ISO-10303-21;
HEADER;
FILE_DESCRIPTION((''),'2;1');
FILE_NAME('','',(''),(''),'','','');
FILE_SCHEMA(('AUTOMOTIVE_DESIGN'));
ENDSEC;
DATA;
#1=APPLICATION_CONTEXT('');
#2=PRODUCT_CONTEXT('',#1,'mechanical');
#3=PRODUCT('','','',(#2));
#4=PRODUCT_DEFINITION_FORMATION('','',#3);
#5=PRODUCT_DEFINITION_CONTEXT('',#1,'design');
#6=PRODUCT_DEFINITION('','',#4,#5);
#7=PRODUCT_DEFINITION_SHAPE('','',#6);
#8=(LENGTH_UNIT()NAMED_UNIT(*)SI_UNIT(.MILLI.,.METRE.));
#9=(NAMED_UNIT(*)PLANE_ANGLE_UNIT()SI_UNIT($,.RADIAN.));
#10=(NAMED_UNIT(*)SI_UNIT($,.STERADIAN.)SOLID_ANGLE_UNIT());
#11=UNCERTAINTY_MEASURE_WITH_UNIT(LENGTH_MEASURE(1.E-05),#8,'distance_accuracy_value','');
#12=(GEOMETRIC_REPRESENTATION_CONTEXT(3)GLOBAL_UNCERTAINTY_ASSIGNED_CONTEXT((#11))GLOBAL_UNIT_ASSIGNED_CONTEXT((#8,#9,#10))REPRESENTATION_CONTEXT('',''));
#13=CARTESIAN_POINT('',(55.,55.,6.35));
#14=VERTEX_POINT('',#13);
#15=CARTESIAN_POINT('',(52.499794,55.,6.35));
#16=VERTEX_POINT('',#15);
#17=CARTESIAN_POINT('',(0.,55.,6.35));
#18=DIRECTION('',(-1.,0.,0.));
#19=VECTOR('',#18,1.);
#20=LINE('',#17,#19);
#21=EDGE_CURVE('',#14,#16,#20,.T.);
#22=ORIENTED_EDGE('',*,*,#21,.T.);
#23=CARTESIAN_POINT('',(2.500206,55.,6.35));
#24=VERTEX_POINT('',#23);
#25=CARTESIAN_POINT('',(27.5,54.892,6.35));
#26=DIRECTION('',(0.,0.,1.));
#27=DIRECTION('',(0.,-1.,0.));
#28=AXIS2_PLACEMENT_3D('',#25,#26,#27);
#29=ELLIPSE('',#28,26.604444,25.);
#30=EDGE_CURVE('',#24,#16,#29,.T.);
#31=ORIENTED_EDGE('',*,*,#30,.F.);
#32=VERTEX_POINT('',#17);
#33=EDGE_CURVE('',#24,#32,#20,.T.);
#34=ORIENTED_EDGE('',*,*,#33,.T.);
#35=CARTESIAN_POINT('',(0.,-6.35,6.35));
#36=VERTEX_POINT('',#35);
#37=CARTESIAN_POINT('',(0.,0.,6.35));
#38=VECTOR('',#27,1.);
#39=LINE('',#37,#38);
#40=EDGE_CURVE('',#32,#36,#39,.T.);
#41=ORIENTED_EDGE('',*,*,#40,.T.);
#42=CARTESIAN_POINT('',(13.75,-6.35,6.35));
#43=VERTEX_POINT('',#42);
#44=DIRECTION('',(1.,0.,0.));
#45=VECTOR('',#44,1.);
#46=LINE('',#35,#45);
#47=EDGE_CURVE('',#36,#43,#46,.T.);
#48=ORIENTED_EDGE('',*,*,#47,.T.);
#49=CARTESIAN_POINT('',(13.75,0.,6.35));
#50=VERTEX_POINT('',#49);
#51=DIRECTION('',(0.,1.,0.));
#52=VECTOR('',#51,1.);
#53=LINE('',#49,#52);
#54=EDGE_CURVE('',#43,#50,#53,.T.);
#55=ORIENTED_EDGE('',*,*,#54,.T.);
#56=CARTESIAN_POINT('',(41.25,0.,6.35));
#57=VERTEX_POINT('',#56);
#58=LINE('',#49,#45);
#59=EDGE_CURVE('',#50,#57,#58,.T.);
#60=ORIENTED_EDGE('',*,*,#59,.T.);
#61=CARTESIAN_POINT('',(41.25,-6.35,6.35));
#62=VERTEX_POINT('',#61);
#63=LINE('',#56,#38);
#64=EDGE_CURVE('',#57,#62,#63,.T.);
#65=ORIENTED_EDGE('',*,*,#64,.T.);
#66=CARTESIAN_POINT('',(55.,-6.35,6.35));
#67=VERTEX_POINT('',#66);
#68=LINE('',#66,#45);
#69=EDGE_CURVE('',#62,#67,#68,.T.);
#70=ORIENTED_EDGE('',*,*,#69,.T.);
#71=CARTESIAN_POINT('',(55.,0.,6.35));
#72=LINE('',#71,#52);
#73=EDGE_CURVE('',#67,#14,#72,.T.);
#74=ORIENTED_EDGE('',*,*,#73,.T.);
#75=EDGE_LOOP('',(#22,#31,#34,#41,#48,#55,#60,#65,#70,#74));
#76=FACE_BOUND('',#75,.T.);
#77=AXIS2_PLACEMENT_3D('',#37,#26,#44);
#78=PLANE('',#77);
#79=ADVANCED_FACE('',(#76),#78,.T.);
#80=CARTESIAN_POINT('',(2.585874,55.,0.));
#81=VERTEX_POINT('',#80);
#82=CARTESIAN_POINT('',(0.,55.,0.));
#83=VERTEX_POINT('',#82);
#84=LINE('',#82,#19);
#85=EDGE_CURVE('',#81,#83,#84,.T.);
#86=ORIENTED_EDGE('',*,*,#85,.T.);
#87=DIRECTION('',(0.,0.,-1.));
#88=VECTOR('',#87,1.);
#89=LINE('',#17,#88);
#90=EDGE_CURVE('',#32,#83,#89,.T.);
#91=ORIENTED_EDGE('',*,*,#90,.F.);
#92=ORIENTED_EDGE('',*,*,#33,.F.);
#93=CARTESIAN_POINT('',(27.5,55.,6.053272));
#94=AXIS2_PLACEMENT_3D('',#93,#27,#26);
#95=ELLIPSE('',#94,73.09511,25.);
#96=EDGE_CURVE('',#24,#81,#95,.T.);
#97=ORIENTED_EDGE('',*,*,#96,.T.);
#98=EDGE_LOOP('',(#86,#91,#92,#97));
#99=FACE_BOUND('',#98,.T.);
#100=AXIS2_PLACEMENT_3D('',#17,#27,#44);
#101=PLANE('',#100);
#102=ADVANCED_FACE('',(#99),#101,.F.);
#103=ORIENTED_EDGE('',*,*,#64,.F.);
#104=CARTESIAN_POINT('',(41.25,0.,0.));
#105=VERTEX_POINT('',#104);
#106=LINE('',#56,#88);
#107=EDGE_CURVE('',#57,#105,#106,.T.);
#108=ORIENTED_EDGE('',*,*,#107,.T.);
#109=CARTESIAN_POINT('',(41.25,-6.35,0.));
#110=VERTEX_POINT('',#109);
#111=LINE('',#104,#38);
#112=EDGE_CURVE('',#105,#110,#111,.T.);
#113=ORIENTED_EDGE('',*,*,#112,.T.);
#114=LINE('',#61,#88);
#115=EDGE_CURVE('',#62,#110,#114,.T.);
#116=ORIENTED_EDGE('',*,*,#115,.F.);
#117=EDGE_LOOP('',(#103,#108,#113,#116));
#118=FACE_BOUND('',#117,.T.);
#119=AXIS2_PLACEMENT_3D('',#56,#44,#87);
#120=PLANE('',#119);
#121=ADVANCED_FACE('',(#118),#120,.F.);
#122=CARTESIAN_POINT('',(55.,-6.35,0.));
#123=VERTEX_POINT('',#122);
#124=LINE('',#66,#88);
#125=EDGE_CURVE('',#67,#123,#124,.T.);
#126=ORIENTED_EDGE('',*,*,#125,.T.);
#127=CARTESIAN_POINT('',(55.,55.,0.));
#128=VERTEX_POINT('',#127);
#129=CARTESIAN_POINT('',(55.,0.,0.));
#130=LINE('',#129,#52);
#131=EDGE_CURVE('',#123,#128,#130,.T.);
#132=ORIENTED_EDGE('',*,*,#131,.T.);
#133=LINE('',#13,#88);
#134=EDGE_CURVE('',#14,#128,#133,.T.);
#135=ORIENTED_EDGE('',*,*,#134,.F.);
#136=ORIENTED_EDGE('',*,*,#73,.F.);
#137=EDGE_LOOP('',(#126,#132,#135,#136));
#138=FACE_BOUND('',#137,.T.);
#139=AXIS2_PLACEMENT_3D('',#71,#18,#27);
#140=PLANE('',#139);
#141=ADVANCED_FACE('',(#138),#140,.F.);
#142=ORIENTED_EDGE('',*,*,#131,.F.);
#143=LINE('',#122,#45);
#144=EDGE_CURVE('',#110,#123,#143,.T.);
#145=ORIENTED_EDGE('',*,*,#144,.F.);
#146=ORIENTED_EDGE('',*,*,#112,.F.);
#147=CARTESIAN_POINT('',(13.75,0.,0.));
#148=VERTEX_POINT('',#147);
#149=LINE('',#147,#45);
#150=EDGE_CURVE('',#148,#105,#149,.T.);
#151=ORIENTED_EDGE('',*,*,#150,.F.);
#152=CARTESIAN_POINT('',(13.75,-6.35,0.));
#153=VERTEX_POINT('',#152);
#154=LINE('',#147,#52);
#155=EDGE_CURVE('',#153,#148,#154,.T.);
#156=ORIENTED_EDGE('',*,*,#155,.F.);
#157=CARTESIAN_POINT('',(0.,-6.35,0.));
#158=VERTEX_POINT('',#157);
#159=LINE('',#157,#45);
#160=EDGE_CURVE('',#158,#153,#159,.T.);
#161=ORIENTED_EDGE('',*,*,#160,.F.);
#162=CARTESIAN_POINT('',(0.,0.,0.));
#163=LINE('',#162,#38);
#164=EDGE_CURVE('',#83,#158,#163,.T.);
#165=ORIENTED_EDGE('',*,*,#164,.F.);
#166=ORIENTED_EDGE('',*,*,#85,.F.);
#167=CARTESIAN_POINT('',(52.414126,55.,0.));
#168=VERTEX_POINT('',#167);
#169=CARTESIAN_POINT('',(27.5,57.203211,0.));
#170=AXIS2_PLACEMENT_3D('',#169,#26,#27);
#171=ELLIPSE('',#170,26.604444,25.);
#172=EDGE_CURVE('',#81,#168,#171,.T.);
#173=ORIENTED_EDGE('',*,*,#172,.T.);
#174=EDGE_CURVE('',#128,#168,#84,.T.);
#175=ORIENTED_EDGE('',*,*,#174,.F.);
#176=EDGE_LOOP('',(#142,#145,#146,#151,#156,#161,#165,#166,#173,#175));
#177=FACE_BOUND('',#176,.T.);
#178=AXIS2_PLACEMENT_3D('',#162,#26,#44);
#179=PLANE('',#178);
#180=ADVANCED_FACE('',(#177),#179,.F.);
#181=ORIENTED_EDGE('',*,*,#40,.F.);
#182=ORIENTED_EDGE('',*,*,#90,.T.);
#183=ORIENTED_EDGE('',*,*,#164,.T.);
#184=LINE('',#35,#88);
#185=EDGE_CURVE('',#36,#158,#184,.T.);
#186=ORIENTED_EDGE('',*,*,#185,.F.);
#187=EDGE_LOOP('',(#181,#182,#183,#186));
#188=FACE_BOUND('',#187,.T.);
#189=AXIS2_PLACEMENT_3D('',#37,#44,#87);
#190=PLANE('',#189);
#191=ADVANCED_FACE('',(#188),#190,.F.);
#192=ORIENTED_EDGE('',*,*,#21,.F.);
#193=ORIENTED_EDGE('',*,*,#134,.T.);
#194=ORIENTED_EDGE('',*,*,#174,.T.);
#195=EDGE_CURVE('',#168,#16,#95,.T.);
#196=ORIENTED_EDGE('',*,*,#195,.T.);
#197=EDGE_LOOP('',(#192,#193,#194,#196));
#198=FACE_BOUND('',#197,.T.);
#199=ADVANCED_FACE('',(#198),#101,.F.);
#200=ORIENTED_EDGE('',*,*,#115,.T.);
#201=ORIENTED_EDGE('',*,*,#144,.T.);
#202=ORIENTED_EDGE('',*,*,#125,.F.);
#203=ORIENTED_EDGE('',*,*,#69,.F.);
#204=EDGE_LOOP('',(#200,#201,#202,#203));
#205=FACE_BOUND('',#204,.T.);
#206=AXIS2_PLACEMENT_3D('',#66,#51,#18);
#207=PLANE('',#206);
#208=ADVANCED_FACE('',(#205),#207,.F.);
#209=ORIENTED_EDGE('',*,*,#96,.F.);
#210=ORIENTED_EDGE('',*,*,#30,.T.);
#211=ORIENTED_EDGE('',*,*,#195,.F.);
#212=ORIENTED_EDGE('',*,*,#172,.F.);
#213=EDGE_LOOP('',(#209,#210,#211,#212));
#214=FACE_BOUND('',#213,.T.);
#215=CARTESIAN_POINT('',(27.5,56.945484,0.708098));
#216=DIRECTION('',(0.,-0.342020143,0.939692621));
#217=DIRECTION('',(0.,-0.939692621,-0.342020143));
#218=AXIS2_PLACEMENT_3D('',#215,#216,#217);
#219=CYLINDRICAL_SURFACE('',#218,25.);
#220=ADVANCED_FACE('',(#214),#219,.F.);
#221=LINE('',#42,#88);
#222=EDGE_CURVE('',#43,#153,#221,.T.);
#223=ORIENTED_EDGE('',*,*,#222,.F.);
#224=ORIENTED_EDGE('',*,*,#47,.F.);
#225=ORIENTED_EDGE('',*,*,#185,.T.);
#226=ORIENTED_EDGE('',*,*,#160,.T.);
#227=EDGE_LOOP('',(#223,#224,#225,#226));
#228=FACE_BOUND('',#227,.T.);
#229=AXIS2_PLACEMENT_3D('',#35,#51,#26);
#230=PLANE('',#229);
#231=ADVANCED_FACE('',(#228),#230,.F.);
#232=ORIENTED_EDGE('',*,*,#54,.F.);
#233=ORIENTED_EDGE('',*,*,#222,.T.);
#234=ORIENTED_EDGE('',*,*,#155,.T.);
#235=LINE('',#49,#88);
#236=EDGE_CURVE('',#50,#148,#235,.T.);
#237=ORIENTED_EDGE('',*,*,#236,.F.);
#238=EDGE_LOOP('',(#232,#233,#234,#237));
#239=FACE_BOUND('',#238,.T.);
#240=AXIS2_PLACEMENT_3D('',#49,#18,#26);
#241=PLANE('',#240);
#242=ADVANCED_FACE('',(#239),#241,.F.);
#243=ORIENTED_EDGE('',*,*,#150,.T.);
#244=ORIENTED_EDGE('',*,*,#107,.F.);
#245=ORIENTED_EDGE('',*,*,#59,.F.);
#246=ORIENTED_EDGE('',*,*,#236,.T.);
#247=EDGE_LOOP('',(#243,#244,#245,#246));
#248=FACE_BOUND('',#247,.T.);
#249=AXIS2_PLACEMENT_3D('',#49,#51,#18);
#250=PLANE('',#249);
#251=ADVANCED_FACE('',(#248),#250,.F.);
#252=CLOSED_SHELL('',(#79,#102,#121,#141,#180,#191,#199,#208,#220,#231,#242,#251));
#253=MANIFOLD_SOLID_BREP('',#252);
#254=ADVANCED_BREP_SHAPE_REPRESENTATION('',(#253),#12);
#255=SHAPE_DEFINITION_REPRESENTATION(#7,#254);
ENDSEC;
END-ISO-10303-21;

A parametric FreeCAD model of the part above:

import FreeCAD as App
import Part
import Sketcher

V = App.Vector
Q = App.Units.Quantity

doc = App.newDocument("Part")
body = doc.addObject("PartDesign::Body", "Body")

sketch1 = doc.addObject("Sketcher::SketchObject", "Sketch")
body.addObject(sketch1)
sketch1.AttachmentSupport = (doc.XY_Plane, [""])
sketch1.MapMode = "FlatFace"
sketch1.addGeometry([
    Part.LineSegment(V(14, 0, 0), V(41, 0, 0)),
    Part.LineSegment(V(41, 0, 0), V(41, -6, 0)),
    Part.LineSegment(V(41, -6, 0), V(55, -6, 0)),
    Part.LineSegment(V(55, -6, 0), V(55, 55, 0)),
    Part.LineSegment(V(55, 55, 0), V(0, 55, 0)),
    Part.LineSegment(V(0, 55, 0), V(0, -6, 0)),
    Part.LineSegment(V(0, -6, 0), V(14, -6, 0)),
    Part.LineSegment(V(14, -6, 0), V(14, 0, 0)),
], False)
sketch1.addConstraint([
    Sketcher.Constraint("Coincident", 0, 2, 1, 1),
    Sketcher.Constraint("Coincident", 1, 2, 2, 1),
    Sketcher.Constraint("Coincident", 2, 2, 3, 1),
    Sketcher.Constraint("Coincident", 3, 2, 4, 1),
    Sketcher.Constraint("Coincident", 4, 2, 5, 1),
    Sketcher.Constraint("Coincident", 5, 2, 6, 1),
    Sketcher.Constraint("Coincident", 6, 2, 7, 1),
    Sketcher.Constraint("Coincident", 7, 2, 0, 1),
    Sketcher.Constraint("Horizontal", 0),
    Sketcher.Constraint("Vertical", 1),
    Sketcher.Constraint("Horizontal", 2),
    Sketcher.Constraint("Vertical", 3),
    Sketcher.Constraint("Horizontal", 4),
    Sketcher.Constraint("Vertical", 5),
    Sketcher.Constraint("Horizontal", 6),
    Sketcher.Constraint("Vertical", 7),
    Sketcher.Constraint("PointOnObject", 0, 2, -1),
    Sketcher.Constraint("PointOnObject", 4, 2, -2),
    Sketcher.Constraint("Horizontal", 2, 2, 5, 2),
    Sketcher.Constraint("Equal", 2, 6),
    Sketcher.Constraint("DistanceX", 4, 2, 4, 1, Q("55 mm")),
    Sketcher.Constraint("DistanceX", 0, 1, 0, 2, Q("27.5 mm")),
    Sketcher.Constraint("DistanceY", -1, 1, 3, 2, Q("55 mm")),
    Sketcher.Constraint("DistanceY", 1, 2, 1, 1, Q("6.35 mm")),
])
pad1 = doc.addObject("PartDesign::Pad", "Pad")
body.addObject(pad1)
pad1.Profile = sketch1
pad1.Length = 6.35

sketch2 = doc.addObject("Sketcher::SketchObject", "Sketch001")
body.addObject(sketch2)
sketch2.Placement = App.Placement(V(0, 4.380294, -12.034758), App.Rotation(V(1, 0, 0), V(0, 0.939692621, 0.342020143), V(0, -0.342020143, 0.939692621), "ZXY"))
sketch2.addGeometry(Part.Circle(V(27, 54, 0), V(0, 0, 1), 25), False)
sketch2.addConstraint([
    Sketcher.Constraint("Diameter", 0, Q("50 mm")),
    Sketcher.Constraint("DistanceX", -1, 1, 0, 3, Q("27.5 mm")),
    Sketcher.Constraint("DistanceY", -1, 1, 0, 3, Q("53.753435 mm")),
])
pocket1 = doc.addObject("PartDesign::Pocket", "Pocket")
body.addObject(pocket1)
pocket1.Profile = sketch2
pocket1.Type = "ThroughAll"
pocket1.Midplane = True

doc.recompute()
